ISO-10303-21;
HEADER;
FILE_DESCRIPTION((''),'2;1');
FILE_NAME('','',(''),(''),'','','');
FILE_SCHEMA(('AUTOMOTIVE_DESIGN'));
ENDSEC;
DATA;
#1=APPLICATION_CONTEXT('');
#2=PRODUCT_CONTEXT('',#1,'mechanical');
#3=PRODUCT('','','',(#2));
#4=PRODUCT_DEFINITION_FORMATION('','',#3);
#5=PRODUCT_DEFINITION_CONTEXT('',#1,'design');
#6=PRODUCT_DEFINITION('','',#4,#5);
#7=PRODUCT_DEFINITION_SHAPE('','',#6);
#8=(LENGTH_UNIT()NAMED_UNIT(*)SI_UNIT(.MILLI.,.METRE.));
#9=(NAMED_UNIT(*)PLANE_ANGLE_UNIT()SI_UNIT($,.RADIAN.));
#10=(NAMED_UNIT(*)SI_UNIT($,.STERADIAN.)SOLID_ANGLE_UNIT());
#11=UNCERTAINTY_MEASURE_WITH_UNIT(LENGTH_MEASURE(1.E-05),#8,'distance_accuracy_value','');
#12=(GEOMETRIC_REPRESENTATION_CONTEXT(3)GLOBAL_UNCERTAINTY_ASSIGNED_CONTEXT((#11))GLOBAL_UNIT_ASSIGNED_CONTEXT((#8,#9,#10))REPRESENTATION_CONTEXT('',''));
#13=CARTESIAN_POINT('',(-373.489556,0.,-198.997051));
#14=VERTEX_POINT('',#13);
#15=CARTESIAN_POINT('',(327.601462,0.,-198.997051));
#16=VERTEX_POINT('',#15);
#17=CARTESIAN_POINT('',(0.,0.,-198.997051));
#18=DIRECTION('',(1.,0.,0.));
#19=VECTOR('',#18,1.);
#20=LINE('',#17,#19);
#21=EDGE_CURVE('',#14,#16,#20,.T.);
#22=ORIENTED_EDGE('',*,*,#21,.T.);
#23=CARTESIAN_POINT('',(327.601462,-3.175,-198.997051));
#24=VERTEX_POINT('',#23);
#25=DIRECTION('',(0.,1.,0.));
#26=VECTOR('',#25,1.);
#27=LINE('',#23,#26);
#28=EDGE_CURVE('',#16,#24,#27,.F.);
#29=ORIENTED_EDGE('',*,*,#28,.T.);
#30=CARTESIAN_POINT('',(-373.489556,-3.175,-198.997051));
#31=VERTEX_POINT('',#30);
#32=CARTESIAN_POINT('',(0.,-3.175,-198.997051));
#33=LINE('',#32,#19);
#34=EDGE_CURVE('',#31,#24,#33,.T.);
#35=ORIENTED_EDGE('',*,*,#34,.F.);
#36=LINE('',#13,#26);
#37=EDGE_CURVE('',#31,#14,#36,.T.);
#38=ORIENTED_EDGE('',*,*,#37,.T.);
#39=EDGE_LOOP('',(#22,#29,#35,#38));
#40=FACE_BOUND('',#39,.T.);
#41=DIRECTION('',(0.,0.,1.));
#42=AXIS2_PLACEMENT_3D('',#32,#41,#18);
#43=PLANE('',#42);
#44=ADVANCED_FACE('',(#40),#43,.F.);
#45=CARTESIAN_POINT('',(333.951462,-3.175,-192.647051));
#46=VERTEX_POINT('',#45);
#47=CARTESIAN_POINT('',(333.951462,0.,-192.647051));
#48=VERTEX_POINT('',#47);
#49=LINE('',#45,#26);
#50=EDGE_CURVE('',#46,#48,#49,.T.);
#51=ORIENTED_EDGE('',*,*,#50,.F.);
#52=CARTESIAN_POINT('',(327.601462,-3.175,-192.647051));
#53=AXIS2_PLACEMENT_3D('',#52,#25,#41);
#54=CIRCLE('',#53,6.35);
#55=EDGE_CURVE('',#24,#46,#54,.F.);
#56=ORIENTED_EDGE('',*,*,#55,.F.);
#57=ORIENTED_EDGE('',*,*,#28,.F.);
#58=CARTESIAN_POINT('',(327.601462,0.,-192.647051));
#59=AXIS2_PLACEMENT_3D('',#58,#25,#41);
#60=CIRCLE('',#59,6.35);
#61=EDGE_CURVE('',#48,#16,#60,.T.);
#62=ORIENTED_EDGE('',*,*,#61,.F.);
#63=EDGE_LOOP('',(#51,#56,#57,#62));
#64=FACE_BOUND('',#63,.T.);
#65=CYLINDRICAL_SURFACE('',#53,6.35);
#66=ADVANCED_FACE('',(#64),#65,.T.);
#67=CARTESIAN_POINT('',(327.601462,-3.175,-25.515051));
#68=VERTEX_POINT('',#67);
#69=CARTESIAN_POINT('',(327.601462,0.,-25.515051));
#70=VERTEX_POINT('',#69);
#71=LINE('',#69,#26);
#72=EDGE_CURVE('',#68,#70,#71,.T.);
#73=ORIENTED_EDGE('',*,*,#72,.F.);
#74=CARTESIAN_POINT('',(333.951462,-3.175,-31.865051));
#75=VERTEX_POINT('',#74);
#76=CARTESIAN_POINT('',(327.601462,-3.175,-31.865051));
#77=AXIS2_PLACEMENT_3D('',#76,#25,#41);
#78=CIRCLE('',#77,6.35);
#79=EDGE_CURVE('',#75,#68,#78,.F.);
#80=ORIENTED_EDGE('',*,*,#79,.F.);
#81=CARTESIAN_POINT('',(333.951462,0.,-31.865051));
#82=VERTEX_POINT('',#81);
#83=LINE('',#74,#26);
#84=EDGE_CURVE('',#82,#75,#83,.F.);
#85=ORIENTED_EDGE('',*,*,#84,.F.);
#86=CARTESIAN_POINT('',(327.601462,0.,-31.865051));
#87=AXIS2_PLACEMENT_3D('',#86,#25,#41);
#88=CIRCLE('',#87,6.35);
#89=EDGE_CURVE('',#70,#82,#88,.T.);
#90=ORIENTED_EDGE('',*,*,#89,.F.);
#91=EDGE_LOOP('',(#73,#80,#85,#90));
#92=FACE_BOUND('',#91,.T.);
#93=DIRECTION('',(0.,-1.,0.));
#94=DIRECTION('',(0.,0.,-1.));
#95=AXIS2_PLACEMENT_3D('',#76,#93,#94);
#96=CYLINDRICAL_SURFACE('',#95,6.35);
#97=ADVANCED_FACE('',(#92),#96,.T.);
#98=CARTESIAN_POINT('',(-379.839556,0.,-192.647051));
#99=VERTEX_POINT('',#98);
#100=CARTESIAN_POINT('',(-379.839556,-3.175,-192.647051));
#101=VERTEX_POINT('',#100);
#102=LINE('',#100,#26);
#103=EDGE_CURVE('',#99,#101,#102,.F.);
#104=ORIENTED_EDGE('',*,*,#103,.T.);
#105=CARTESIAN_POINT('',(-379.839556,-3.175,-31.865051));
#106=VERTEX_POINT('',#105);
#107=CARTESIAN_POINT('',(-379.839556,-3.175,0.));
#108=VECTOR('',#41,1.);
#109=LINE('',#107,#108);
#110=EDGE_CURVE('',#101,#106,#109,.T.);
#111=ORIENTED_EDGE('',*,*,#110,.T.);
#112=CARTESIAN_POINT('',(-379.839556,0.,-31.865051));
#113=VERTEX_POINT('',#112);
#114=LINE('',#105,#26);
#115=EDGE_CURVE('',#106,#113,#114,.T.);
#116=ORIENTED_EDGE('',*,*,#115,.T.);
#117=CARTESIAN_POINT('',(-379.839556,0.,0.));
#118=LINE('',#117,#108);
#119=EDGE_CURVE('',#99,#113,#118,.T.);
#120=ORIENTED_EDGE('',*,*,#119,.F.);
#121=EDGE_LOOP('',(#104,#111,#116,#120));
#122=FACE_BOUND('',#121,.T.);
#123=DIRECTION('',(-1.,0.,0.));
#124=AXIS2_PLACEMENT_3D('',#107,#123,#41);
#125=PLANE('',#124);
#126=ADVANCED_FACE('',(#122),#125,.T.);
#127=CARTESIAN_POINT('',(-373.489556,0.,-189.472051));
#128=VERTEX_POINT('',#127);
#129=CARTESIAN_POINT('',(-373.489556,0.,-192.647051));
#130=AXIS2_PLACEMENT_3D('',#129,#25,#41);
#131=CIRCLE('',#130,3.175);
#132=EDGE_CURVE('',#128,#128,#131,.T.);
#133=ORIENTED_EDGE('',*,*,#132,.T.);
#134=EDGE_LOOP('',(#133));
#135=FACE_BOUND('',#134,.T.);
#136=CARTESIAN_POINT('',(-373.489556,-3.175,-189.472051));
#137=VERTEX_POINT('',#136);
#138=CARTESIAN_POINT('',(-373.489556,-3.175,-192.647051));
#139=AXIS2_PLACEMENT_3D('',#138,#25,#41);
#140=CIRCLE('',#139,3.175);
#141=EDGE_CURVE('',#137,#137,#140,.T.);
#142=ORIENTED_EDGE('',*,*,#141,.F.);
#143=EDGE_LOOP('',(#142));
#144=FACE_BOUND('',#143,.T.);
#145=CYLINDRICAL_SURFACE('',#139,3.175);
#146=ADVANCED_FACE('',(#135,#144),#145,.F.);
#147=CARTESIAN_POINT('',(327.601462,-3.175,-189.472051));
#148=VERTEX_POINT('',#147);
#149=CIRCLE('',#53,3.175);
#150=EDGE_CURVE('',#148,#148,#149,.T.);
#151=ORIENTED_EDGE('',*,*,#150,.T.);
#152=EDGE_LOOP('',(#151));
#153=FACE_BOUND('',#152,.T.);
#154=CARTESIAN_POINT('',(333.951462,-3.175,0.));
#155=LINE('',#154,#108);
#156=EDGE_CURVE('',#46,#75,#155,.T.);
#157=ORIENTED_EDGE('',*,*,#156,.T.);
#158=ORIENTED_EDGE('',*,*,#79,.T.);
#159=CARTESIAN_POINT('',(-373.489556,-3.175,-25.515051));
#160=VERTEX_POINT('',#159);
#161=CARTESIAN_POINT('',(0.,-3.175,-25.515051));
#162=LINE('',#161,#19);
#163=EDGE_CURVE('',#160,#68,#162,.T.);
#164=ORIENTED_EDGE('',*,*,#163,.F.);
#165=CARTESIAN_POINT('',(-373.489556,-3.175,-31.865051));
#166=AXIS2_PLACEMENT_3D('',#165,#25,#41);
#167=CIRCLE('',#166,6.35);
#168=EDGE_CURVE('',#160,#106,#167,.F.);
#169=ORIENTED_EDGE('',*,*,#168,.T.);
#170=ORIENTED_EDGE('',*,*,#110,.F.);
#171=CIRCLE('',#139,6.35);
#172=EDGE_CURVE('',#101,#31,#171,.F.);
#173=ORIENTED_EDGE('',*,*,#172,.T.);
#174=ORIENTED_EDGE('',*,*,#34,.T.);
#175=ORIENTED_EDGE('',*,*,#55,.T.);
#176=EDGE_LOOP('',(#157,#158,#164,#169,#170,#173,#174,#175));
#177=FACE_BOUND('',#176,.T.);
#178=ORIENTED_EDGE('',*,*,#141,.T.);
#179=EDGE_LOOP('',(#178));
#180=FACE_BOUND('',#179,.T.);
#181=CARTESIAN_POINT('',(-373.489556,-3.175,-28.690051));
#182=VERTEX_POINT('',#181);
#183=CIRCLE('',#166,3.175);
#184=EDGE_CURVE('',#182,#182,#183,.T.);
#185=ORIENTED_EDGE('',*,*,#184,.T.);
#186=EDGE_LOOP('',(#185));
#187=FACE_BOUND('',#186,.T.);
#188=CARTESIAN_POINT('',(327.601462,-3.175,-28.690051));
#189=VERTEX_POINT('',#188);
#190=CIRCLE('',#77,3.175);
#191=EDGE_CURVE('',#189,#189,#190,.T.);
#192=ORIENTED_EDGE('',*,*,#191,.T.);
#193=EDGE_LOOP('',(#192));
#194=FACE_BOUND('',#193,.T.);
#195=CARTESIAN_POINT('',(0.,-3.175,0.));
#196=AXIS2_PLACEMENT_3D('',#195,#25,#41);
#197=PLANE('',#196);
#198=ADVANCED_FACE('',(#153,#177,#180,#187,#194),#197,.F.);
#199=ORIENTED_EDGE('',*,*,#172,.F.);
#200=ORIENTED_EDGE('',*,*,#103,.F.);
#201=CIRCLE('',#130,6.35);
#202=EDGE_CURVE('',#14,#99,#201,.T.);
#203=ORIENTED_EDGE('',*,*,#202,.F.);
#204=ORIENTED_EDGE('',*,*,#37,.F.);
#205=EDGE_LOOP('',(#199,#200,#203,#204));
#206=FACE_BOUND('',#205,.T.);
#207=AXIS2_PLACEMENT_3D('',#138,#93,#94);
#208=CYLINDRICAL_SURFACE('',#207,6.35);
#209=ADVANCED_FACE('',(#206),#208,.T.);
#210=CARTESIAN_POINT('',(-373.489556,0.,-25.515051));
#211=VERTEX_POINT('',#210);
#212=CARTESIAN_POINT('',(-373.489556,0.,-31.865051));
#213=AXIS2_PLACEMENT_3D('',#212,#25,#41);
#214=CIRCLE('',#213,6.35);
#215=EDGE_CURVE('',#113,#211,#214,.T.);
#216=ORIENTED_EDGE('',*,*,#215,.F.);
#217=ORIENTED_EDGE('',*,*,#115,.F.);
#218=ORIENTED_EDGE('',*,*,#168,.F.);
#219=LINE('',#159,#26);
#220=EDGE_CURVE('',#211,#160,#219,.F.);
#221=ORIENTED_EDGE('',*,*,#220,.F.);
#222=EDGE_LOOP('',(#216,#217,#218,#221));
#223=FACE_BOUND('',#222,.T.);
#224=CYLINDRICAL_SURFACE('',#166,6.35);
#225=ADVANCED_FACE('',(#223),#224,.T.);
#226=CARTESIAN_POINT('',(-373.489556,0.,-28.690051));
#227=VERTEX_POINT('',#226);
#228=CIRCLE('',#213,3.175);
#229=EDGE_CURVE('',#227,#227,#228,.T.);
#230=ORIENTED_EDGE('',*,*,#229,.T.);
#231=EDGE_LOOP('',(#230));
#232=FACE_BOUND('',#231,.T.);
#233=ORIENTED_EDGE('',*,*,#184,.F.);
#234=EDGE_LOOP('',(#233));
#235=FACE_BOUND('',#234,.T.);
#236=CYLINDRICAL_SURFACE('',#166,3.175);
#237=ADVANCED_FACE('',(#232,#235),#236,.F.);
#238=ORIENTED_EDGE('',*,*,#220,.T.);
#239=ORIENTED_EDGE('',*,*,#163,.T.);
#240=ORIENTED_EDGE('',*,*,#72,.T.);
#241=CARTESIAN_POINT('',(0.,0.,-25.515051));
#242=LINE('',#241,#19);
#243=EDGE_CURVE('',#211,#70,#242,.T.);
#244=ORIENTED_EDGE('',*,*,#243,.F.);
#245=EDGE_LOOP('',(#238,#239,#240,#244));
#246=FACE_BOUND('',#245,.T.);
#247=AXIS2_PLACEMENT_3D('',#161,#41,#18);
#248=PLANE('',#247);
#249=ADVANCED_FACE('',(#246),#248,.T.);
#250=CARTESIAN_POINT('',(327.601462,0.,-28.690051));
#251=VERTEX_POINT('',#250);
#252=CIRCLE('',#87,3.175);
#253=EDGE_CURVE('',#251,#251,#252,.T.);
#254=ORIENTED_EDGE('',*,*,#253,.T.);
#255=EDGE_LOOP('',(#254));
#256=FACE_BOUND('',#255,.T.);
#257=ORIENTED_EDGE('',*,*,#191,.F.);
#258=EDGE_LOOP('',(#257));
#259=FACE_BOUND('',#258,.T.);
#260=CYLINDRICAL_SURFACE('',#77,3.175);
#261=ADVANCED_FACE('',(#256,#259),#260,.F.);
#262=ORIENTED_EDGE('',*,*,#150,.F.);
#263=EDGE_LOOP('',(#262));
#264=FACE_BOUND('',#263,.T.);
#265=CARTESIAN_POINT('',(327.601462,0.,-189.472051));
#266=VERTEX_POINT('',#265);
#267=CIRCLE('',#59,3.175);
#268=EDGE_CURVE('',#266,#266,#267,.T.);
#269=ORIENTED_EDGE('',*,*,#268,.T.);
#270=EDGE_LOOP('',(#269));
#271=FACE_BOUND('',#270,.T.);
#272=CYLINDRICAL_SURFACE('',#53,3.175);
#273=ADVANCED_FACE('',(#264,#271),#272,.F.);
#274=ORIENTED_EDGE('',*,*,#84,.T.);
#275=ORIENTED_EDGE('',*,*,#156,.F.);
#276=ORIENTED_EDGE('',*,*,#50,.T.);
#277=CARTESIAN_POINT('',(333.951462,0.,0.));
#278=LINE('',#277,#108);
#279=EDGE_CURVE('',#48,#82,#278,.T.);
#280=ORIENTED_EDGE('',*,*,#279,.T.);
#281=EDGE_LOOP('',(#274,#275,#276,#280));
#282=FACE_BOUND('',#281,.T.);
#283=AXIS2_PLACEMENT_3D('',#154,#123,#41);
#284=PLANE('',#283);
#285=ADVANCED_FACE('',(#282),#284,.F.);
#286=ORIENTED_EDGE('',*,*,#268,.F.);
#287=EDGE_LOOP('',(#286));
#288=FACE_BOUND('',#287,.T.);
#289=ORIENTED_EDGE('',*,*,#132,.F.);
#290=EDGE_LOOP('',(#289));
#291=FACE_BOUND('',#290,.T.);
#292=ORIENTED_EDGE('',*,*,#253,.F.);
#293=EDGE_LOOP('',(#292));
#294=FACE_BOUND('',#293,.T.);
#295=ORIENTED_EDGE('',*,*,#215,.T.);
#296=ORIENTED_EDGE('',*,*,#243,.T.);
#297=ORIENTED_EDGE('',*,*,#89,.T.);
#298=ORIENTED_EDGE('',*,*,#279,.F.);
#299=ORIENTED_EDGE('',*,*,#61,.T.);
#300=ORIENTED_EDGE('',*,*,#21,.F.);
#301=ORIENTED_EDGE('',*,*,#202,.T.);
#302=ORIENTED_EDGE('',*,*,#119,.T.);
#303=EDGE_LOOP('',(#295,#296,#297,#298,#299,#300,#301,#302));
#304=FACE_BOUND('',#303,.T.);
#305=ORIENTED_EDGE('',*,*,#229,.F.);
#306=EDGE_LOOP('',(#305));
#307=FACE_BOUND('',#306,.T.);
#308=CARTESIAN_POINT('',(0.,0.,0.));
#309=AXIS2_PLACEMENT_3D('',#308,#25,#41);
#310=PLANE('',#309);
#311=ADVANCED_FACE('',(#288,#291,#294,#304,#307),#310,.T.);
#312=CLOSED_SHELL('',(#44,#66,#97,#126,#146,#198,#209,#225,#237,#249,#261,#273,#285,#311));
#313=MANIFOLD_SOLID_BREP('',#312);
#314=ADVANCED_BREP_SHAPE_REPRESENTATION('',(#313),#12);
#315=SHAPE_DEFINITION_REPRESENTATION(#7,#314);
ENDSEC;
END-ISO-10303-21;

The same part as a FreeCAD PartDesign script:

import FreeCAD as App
import Part
import Sketcher

V = App.Vector
Q = App.Units.Quantity


def edges_at(feature, points):
    """Names of the edges that pass closest to the given points."""
    edges = feature.Shape.Edges
    near = lambda p: min(range(len(edges)), key=lambda i: edges[i].distToShape(Part.Vertex(*p))[0])
    return sorted({f"Edge{near(p) + 1}" for p in points})


def add_polygon(sketch, points):
    """Adds a closed chain of lines whose ends are joined by coincident constraints."""
    first, n = sketch.GeometryCount, len(points)
    for a, b in zip(points, points[1:] + points[:1]):
        sketch.addGeometry(Part.LineSegment(App.Vector(*a, 0), App.Vector(*b, 0)), False)
    for i in range(n):
        sketch.addConstraint(Sketcher.Constraint("Coincident", first + i, 2, first + (i + 1) % n, 1))

doc = App.newDocument("Part")
params = doc.addObject("Spreadsheet::Sheet", "Params")
for row, (alias, value) in enumerate([
    ("sketch1_diameter", "0.25 in"),
    ("sketch1_height", "6.83 in"),
    ("pad1_length", "0.125 in"),
    ("fillet_radius", "0.25 in"),
], start=1):
    params.set(f"A{row}", alias)
    params.set(f"B{row}", "=" + value)
    params.setAlias(f"B{row}", alias)

body = doc.addObject("PartDesign::Body", "Body")

# Sketch on XZ plane
sketch1 = doc.addObject("Sketcher::SketchObject", "Sketch")
body.addObject(sketch1)
sketch1.AttachmentSupport = (doc.XZ_Plane, [""])
sketch1.MapMode = "FlatFace"
add_polygon(sketch1, [(-379.839556, -198.997051), (-379.839556, -25.515051), (333.951462, -25.515051), (333.951462, -198.997051)])  # lines 0-3
sketch1.addGeometry(Part.Circle(V(-373.489556, -31.865051, 0), V(0, 0, 1), 3.175), False)  # 4
sketch1.addGeometry(Part.Circle(V(327.601462, -31.865051, 0), V(0, 0, 1), 3.175), False)  # 5
sketch1.addGeometry(Part.Circle(V(-373.489556, -192.647051, 0), V(0, 0, 1), 3.175), False)  # 6
sketch1.addGeometry(Part.Circle(V(327.601462, -192.647051, 0), V(0, 0, 1), 3.175), False)  # 7
sketch1.addConstraint([
    Sketcher.Constraint("Vertical", 0),
    Sketcher.Constraint("Horizontal", 1),
    Sketcher.Constraint("Vertical", 2),
    Sketcher.Constraint("Horizontal", 3),
    Sketcher.Constraint("Equal", 4, 5),
    Sketcher.Constraint("Equal", 5, 6),
    Sketcher.Constraint("Equal", 6, 7),
    Sketcher.Constraint("Horizontal", 4, 3, 5, 3),
    Sketcher.Constraint("Horizontal", 6, 3, 7, 3),
    Sketcher.Constraint("Vertical", 4, 3, 6, 3),
    Sketcher.Constraint("Vertical", 5, 3, 7, 3),
    Sketcher.Constraint("Diameter", 4, Q("0.25 in")),
    Sketcher.Constraint("DistanceY", 0, 1, 0, 2, Q("6.83 in")),
    Sketcher.Constraint("DistanceY", 6, 3, 4, 3, Q("6.33 in")),
    Sketcher.Constraint("DistanceX", 0, 2, 4, 3, Q("0.25 in")),
    Sketcher.Constraint("DistanceY", 4, 3, 0, 2, Q("0.25 in")),
    Sketcher.Constraint("DistanceX", 5, 3, 1, 2, Q("0.25 in")),
    Sketcher.Constraint("DistanceX", 1, 1, 1, 2, 713.791018),
    Sketcher.Constraint("DistanceY", 4, 3, -1, 1, 31.865051),
    Sketcher.Constraint("DistanceX", -1, 1, 5, 3, 327.601462),
])
sketch1.setExpression("Constraints[15]", "Params.sketch1_diameter")
sketch1.setExpression("Constraints[16]", "Params.sketch1_height")
pad1 = doc.addObject("PartDesign::Pad", "Pad")
body.addObject(pad1)
pad1.Profile = sketch1
pad1.setExpression("Length", "Params.pad1_length")
doc.recompute()

fillet = doc.addObject("PartDesign::Fillet", "Fillet")
body.addObject(fillet)
fillet.Base = (pad1, edges_at(pad1, [
    (333.951, -1.587, -25.515),
    (-379.84, -1.587, -25.515),
    (-379.84, -1.587, -198.997),
    (333.951, -1.587, -198.997),
]))
fillet.setExpression("Radius", "Params.fillet_radius")

doc.recompute()
